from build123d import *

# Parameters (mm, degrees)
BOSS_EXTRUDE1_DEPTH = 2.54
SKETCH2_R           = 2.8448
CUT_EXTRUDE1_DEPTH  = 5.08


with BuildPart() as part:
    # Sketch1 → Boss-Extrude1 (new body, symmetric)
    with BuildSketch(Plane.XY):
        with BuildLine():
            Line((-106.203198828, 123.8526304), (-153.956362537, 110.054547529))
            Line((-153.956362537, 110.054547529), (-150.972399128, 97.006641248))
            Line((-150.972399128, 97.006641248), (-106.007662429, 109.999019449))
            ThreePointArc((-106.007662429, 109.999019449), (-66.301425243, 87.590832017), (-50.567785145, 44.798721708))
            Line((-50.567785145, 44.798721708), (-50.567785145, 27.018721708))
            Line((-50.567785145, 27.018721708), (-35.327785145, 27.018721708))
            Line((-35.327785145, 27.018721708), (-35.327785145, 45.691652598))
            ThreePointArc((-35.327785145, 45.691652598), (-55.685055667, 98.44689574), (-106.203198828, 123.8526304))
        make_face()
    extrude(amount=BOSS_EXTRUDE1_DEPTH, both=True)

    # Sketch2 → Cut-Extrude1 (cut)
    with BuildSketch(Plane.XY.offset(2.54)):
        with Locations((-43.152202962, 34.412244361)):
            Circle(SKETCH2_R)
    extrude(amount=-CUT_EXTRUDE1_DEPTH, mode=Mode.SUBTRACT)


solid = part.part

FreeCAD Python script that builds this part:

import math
import FreeCAD as App
import Part
import Sketcher

V = App.Vector
Q = App.Units.Quantity

doc = App.newDocument("Part")
body = doc.addObject("PartDesign::Body", "Body")

# Sketch on XY plane
sketch1 = body.newObject("Sketcher::SketchObject", "Sketch")
sketch1.AttachmentSupport = (doc.getObject("XY_Plane"), [""])
sketch1.MapMode = "FlatFace"
sketch1.addGeometry(Part.LineSegment(V(-106.203199, 123.85263, 0), V(-153.956363, 110.054548, 0)), False)
sketch1.addGeometry(Part.LineSegment(V(-153.956363, 110.054548, 0), V(-150.972399, 97.006641, 0)), False)
sketch1.addGeometry(Part.LineSegment(V(-150.972399, 97.006641, 0), V(-106.007662, 109.999019, 0)), False)
sketch1.addGeometry(Part.ArcOfCircle(Part.Circle(V(-116.627264, 44.798722, 0), V(0, 0, 1), 66.059479), math.radians(0), math.radians(80.749093)), False)
sketch1.addGeometry(Part.LineSegment(V(-50.567785, 44.798722, 0), V(-50.567785, 27.018722, 0)), False)
sketch1.addGeometry(Part.LineSegment(V(-50.567785, 27.018722, 0), V(-35.327785, 27.018722, 0)), False)
sketch1.addGeometry(Part.LineSegment(V(-35.327785, 27.018722, 0), V(-35.327785, 45.691653, 0)), False)
sketch1.addGeometry(Part.ArcOfCircle(Part.Circle(V(-113.863219, 45.691653, 0), V(0, 0, 1), 78.535434), math.radians(0), math.radians(84.402709)), False)
sketch1.addConstraint(Sketcher.Constraint("Coincident", 0, 2, 1, 1))
sketch1.addConstraint(Sketcher.Constraint("Coincident", 1, 2, 2, 1))
sketch1.addConstraint(Sketcher.Constraint("Coincident", 2, 2, 3, 2))
sketch1.addConstraint(Sketcher.Constraint("Tangent", 3, 1, 4, 1))
sketch1.addConstraint(Sketcher.Constraint("Coincident", 4, 2, 5, 1))
sketch1.addConstraint(Sketcher.Constraint("Coincident", 5, 2, 6, 1))
sketch1.addConstraint(Sketcher.Constraint("Tangent", 6, 2, 7, 1))
sketch1.addConstraint(Sketcher.Constraint("Coincident", 7, 2, 0, 1))
sketch1.addConstraint(Sketcher.Constraint("Vertical", 4))
sketch1.addConstraint(Sketcher.Constraint("Horizontal", 5))
sketch1.addConstraint(Sketcher.Constraint("Vertical", 6))
sketch1.addConstraint(Sketcher.Constraint("Parallel", 0, 2))
sketch1.addConstraint(Sketcher.Constraint("DistanceX", 5, 1, 5, 2, Q("0.6 in")))
sketch1.addConstraint(Sketcher.Constraint("DistanceY", 4, 2, 4, 1, Q("0.7 in")))
sketch1.addConstraint(Sketcher.Constraint("Radius", 3, 66.059479))
sketch1.addConstraint(Sketcher.Constraint("Radius", 7, 78.535434))
sketch1.addConstraint(Sketcher.Constraint("DistanceY", 6, 1, 6, 2, 18.672931))
sketch1.addConstraint(Sketcher.Constraint("DistanceX", 1, 2, -1, 1, 150.972399))
sketch1.addConstraint(Sketcher.Constraint("DistanceX", 7, 2, -1, 1, 106.203199))
sketch1.addConstraint(Sketcher.Constraint("DistanceX", 0, 2, 3, 3, 37.329098))
sketch1.addConstraint(Sketcher.Constraint("DistanceX", 0, 2, 2, 2, 47.9487))
sketch1.addConstraint(Sketcher.Constraint("Distance", 2, 46.80416))
sketch1.addConstraint(Sketcher.Constraint("DistanceY", -1, 1, 3, 3, 44.798722))
sketch1.addConstraint(Sketcher.Constraint("DistanceX", 7, 3, -1, 1, 113.863219))
pad1 = body.newObject("PartDesign::Pad", "Pad")
pad1.Profile = sketch1
pad1.Length = Q("0.2 in")
pad1.Midplane = True

# Sketch on XY plane
sketch2 = body.newObject("Sketcher::SketchObject", "Sketch001")
sketch2.AttachmentSupport = (doc.getObject("XY_Plane"), [""])
sketch2.MapMode = "FlatFace"
sketch2.AttachmentOffset = App.Placement(V(0, 0, 0.1 * 25.4), App.Rotation())
sketch2.addGeometry(Part.Circle(V(-43.152203, 34.412244, 0), V(0, 0, 1), 2.8448), False)
sketch2.addConstraint(Sketcher.Constraint("Diameter", 0, Q("0.224 in")))
sketch2.addConstraint(Sketcher.Constraint("DistanceX", 0, 3, -1, 1, 43.152203))
sketch2.addConstraint(Sketcher.Constraint("DistanceY", -1, 1, 0, 3, 34.412244))
pocket1 = body.newObject("PartDesign::Pocket", "Pocket")
pocket1.Profile = sketch2
pocket1.Length = Q("0.2 in")

doc.recompute()
